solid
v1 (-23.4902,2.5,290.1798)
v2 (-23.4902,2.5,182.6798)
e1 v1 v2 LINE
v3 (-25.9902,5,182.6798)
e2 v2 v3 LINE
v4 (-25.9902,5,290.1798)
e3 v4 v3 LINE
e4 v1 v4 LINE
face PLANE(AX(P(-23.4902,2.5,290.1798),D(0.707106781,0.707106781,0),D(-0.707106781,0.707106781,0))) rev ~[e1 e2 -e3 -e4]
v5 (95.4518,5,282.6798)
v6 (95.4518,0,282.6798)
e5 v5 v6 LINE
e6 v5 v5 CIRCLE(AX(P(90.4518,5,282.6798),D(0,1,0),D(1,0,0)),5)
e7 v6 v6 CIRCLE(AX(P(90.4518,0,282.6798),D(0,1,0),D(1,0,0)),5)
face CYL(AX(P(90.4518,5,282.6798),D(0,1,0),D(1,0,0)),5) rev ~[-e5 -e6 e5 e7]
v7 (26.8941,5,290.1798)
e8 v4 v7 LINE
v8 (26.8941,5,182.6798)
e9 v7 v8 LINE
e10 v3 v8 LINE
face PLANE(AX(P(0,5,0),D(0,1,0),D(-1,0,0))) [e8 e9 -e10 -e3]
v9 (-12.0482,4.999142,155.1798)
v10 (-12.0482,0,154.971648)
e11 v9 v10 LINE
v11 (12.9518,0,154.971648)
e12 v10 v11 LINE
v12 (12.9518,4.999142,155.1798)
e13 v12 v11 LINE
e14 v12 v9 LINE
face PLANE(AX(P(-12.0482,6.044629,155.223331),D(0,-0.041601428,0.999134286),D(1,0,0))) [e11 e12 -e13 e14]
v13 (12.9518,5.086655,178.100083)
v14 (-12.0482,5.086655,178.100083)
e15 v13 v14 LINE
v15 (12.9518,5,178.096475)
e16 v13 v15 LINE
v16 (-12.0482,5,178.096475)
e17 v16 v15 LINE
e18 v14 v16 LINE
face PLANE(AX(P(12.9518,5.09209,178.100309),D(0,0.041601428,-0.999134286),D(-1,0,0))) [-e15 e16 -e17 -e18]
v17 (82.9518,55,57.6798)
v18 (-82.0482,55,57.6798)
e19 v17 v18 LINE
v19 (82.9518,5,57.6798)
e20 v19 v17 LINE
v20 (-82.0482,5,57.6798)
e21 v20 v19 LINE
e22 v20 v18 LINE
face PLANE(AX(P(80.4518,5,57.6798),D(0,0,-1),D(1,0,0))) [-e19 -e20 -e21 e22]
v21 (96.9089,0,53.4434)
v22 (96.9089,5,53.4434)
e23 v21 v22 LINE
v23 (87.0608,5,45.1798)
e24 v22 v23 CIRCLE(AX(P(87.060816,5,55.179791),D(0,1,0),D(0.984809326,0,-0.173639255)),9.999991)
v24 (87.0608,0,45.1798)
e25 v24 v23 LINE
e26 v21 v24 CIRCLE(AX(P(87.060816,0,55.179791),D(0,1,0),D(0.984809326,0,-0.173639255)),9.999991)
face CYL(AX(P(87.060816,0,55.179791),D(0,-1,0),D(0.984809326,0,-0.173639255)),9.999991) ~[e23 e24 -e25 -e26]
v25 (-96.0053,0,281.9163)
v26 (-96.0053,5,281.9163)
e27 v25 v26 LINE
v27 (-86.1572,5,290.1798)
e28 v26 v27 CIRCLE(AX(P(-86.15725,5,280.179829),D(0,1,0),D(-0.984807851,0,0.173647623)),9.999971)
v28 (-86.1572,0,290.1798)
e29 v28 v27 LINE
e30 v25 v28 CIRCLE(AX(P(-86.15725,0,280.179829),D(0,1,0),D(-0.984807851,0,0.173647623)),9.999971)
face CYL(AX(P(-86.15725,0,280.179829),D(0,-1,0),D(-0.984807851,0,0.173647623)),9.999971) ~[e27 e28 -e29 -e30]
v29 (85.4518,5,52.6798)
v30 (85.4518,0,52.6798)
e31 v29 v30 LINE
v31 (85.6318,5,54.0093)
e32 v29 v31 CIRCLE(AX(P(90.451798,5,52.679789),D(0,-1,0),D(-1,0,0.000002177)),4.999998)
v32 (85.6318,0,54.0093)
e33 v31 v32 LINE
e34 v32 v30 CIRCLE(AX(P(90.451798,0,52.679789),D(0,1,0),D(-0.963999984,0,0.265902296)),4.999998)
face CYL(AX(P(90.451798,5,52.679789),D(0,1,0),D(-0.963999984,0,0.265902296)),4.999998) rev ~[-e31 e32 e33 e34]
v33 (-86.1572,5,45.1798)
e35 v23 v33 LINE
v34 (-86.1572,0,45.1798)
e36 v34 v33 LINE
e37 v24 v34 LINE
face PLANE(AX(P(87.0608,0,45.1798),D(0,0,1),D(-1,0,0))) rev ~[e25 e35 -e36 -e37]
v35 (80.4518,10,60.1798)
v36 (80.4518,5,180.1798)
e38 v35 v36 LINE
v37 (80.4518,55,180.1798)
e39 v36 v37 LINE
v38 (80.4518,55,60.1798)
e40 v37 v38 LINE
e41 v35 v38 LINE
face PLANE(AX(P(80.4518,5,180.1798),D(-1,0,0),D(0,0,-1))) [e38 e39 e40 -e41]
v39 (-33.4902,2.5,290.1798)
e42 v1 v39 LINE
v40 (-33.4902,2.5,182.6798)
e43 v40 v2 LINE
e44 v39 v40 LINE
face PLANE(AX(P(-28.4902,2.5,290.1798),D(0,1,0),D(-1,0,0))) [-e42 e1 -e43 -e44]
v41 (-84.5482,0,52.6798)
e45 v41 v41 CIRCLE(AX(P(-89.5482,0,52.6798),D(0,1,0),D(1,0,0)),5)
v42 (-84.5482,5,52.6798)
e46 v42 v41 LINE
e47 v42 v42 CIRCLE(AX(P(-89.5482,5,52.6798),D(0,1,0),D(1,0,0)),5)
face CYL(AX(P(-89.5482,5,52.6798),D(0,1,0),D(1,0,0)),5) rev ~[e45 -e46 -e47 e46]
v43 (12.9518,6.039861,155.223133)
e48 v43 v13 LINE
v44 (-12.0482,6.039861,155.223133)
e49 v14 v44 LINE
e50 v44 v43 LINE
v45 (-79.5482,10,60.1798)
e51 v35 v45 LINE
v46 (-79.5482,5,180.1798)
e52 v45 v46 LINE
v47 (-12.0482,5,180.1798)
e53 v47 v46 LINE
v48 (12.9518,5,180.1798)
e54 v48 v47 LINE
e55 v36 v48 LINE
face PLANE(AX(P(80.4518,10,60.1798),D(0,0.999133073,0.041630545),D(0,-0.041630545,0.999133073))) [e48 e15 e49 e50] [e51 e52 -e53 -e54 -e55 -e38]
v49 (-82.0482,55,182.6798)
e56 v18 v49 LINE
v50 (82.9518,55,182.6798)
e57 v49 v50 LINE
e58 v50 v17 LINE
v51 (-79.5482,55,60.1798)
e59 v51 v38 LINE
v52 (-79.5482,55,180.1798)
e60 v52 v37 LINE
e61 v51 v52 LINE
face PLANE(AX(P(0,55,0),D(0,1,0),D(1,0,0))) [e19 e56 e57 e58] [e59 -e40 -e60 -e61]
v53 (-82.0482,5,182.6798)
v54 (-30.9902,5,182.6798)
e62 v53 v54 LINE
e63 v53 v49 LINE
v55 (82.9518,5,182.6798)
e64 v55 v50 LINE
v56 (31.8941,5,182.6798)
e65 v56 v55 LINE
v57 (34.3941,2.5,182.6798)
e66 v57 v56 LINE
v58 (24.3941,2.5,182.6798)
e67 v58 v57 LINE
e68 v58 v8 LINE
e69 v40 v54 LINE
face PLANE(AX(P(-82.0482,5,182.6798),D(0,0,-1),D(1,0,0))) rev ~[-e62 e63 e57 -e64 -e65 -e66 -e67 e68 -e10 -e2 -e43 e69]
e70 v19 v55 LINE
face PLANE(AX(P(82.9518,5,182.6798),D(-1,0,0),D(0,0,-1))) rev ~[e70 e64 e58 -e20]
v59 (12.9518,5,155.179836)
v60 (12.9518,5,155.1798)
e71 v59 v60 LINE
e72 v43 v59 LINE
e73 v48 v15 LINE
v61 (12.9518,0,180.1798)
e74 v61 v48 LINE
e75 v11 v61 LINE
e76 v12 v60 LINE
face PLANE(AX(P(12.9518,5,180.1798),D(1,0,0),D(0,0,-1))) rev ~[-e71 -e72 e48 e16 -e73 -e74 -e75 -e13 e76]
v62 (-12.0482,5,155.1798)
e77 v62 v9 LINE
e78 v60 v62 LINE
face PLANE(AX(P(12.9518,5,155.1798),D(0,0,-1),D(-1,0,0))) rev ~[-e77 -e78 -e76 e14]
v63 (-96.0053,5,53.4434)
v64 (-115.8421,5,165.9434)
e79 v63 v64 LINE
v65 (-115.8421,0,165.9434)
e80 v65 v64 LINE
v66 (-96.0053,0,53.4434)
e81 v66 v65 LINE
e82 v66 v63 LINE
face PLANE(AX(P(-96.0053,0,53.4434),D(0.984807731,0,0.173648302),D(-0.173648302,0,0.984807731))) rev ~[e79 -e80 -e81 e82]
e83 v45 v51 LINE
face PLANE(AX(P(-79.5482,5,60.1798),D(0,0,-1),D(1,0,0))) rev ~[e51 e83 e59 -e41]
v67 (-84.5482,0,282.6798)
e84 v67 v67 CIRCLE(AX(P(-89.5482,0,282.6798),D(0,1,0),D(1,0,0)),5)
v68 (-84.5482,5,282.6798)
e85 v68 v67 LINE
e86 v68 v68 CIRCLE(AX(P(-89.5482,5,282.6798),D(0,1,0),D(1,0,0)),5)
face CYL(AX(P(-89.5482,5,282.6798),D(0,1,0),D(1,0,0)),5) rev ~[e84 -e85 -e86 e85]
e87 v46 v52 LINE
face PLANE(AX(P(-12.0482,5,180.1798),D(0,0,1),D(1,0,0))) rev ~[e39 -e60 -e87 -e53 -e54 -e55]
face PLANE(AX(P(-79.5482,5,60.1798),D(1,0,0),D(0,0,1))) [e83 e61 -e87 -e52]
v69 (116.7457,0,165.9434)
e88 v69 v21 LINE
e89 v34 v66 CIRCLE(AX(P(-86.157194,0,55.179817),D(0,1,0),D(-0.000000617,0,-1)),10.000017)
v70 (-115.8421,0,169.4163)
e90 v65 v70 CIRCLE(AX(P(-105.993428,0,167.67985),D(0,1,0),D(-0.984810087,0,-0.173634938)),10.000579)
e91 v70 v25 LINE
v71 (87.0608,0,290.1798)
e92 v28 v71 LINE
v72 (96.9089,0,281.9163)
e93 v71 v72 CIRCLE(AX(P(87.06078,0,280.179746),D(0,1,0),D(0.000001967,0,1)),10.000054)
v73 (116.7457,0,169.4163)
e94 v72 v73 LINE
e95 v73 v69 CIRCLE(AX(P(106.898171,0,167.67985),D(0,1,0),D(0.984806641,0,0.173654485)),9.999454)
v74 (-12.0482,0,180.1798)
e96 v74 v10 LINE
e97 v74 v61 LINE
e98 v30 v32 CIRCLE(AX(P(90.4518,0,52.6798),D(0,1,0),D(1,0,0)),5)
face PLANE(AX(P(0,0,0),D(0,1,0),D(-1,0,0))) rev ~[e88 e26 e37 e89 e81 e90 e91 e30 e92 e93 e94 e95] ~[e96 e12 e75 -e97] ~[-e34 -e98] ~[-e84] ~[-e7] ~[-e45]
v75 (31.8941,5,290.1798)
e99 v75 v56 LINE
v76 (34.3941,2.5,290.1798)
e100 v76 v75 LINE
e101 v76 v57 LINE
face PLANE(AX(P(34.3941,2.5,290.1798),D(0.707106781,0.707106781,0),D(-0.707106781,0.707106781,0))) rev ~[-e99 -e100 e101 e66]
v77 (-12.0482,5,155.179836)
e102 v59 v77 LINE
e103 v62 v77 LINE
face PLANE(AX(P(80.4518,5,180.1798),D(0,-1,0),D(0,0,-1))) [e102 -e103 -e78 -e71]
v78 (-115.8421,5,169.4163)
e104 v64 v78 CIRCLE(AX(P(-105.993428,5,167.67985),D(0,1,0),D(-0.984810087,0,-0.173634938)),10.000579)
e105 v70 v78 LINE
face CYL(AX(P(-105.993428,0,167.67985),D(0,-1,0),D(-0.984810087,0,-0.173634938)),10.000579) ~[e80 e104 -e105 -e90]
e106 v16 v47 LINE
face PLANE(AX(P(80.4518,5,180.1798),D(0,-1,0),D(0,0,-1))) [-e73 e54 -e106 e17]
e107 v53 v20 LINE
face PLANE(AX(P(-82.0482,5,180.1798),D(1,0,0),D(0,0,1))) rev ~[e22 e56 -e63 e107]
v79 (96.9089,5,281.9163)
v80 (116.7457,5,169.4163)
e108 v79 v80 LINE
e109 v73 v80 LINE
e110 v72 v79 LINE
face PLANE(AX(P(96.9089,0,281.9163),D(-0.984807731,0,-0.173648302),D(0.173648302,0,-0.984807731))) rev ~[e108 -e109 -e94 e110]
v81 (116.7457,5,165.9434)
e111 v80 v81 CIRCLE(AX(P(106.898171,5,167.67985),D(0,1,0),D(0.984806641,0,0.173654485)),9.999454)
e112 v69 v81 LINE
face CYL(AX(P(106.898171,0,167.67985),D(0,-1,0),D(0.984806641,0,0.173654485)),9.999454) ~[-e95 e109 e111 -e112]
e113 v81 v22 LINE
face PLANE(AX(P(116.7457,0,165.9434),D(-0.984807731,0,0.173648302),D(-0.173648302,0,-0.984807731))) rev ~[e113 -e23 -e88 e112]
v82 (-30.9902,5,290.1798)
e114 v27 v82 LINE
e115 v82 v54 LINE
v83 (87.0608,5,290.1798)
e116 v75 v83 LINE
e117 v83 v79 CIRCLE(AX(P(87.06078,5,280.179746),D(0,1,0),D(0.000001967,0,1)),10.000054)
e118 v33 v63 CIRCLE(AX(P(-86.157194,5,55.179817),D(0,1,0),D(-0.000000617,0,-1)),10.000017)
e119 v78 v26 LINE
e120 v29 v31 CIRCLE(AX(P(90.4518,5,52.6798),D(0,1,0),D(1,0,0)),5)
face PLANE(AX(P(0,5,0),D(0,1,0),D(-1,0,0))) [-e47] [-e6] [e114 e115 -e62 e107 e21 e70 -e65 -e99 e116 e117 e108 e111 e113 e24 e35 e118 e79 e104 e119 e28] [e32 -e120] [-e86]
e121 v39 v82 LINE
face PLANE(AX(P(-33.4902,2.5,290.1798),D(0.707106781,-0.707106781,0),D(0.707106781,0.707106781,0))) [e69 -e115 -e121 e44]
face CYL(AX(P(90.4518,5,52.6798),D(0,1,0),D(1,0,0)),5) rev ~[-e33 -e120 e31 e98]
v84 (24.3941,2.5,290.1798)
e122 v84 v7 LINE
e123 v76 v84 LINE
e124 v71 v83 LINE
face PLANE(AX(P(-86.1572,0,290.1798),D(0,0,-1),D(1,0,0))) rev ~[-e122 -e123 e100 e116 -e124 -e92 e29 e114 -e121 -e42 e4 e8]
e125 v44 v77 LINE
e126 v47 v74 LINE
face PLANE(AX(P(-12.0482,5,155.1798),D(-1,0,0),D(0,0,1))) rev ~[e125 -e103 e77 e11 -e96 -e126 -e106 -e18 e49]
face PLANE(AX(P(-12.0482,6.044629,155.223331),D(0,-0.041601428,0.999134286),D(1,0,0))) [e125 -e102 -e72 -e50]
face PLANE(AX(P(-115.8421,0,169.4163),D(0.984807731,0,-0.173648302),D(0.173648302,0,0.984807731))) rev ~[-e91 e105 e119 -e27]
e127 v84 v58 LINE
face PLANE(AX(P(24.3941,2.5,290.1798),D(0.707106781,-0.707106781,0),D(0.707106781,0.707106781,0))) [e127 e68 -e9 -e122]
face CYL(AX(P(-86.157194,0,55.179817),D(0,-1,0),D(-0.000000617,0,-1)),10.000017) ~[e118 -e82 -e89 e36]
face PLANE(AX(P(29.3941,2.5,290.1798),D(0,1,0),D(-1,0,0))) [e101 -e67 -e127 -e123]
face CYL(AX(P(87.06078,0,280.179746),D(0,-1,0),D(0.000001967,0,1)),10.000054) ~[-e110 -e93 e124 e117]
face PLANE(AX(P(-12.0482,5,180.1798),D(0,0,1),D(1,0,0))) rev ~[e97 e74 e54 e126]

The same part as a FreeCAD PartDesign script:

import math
import FreeCAD as App
import Part
import Sketcher
from FreeCAD import Vector
Q = App.Units.Quantity


def add_polygon(sketch, points):
    """Adds a closed chain of lines whose ends are joined by coincident constraints."""
    first, n = sketch.GeometryCount, len(points)
    for a, b in zip(points, points[1:] + points[:1]):
        sketch.addGeometry(Part.LineSegment(App.Vector(*a, 0), App.Vector(*b, 0)), False)
    for i in range(n):
        sketch.addConstraint(Sketcher.Constraint("Coincident", first + i, 2, first + (i + 1) % n, 1))

doc = App.newDocument("Part")
body = doc.addObject("PartDesign::Body", "Body")

sketch1 = doc.addObject("Sketcher::SketchObject", "Sketch")
body.addObject(sketch1)
sketch1.AttachmentSupport = (doc.XZ_Plane, [""])
sketch1.MapMode = "FlatFace"
sketch1.addGeometry(Part.LineSegment(Vector(87.1, 45.2, 0), Vector(-86.2, 45.2, 0)), False)
sketch1.addGeometry(Part.ArcOfCircle(Part.Circle(Vector(-86.2, 55.2, 0), Vector(0, 0, 1), 10), math.radians(-170), math.radians(-90)), False)
sketch1.addGeometry(Part.LineSegment(Vector(-96, 53.4, 0), Vector(-115.8, 165.9, 0)), False)
sketch1.addGeometry(Part.ArcOfCircle(Part.Circle(Vector(-106, 167.7, 0), Vector(0, 0, 1), 10), math.radians(170), math.radians(190)), False)
sketch1.addGeometry(Part.LineSegment(Vector(-115.8, 169.4, 0), Vector(-96, 281.9, 0)), False)
sketch1.addGeometry(Part.ArcOfCircle(Part.Circle(Vector(-86.2, 280.2, 0), Vector(0, 0, 1), 10), math.radians(90), math.radians(170)), False)
sketch1.addGeometry(Part.LineSegment(Vector(-86.2, 290.2, 0), Vector(87.1, 290.2, 0)), False)
sketch1.addGeometry(Part.ArcOfCircle(Part.Circle(Vector(87.1, 280.2, 0), Vector(0, 0, 1), 10), math.radians(10), math.radians(90)), False)
sketch1.addGeometry(Part.LineSegment(Vector(96.9, 281.9, 0), Vector(116.7, 169.4, 0)), False)
sketch1.addGeometry(Part.ArcOfCircle(Part.Circle(Vector(106.9, 167.7, 0), Vector(0, 0, 1), 10), math.radians(-10), math.radians(10)), False)
sketch1.addGeometry(Part.LineSegment(Vector(116.7, 165.9, 0), Vector(96.9, 53.4, 0)), False)
sketch1.addGeometry(Part.ArcOfCircle(Part.Circle(Vector(87.1, 55.2, 0), Vector(0, 0, 1), 10), math.radians(-90), math.radians(-10)), False)
sketch1.addConstraint(Sketcher.Constraint("Tangent", 0, 2, 1, 2))
sketch1.addConstraint(Sketcher.Constraint("Tangent", 1, 1, 2, 1))
sketch1.addConstraint(Sketcher.Constraint("Tangent", 2, 2, 3, 2))
sketch1.addConstraint(Sketcher.Constraint("Tangent", 3, 1, 4, 1))
sketch1.addConstraint(Sketcher.Constraint("Tangent", 4, 2, 5, 2))
sketch1.addConstraint(Sketcher.Constraint("Tangent", 5, 1, 6, 1))
sketch1.addConstraint(Sketcher.Constraint("Tangent", 6, 2, 7, 2))
sketch1.addConstraint(Sketcher.Constraint("Tangent", 7, 1, 8, 1))
sketch1.addConstraint(Sketcher.Constraint("Tangent", 8, 2, 9, 2))
sketch1.addConstraint(Sketcher.Constraint("Tangent", 9, 1, 10, 1))
sketch1.addConstraint(Sketcher.Constraint("Tangent", 10, 2, 11, 2))
sketch1.addConstraint(Sketcher.Constraint("Tangent", 11, 1, 0, 1))
sketch1.addConstraint(Sketcher.Constraint("Horizontal", 0))
sketch1.addConstraint(Sketcher.Constraint("Horizontal", 6))
sketch1.addConstraint(Sketcher.Constraint("Equal", 1, 3))
sketch1.addConstraint(Sketcher.Constraint("Equal", 3, 5))
sketch1.addConstraint(Sketcher.Constraint("Equal", 5, 7))
sketch1.addConstraint(Sketcher.Constraint("Equal", 7, 9))
sketch1.addConstraint(Sketcher.Constraint("Equal", 9, 11))
sketch1.addConstraint(Sketcher.Constraint("Parallel", 2, 8))
sketch1.addConstraint(Sketcher.Constraint("Parallel", 4, 10))
sketch1.addConstraint(Sketcher.Constraint("Horizontal", 3, 3, 9, 3))
sketch1.addConstraint(Sketcher.Constraint("Horizontal", 4, 2, 7, 1))
sketch1.addConstraint(Sketcher.Constraint("Vertical", 1, 3, 5, 3))
sketch1.addConstraint(Sketcher.Constraint("Radius", 1, 10.0))
sketch1.addConstraint(Sketcher.Constraint("Angle", 2, Q("100 deg")))
sketch1.addConstraint(Sketcher.Constraint("DistanceY", 1, 3, 5, 3, 225.0))
sketch1.addConstraint(Sketcher.Constraint("DistanceX", 0, 2, 0, 1, 173.218))
sketch1.addConstraint(Sketcher.Constraint("DistanceX", 3, 3, -1, 1, 105.994))
sketch1.addConstraint(Sketcher.Constraint("DistanceY", -1, 1, 1, 3, 55.1798))
pad1 = doc.addObject("PartDesign::Pad", "Pad")
body.addObject(pad1)
pad1.Profile = sketch1
pad1.Length = 5
pad1.Reversed = True

sketch2 = doc.addObject("Sketcher::SketchObject", "Sketch001")
body.addObject(sketch2)
sketch2.AttachmentSupport = (doc.XZ_Plane, [""])
sketch2.MapMode = "FlatFace"
sketch2.AttachmentOffset = App.Placement(Vector(0, 0, -5), App.Rotation())
sketch2.addGeometry(Part.ArcOfCircle(Part.Circle(Vector(90.5, 52.7, 0), Vector(0, 0, 1), 5), math.radians(164.58), math.radians(180)), False)
sketch2.addGeometry(Part.ArcOfCircle(Part.Circle(Vector(90.5, 52.7, 0), Vector(0, 0, 1), 5), math.radians(180), math.radians(525)), False)
sketch2.addGeometry(Part.Circle(Vector(90.5, 282.7, 0), Vector(0, 0, 1), 5), False)
sketch2.addGeometry(Part.Circle(Vector(-89.5, 52.7, 0), Vector(0, 0, 1), 5), False)
sketch2.addGeometry(Part.Circle(Vector(-89.5, 282.7, 0), Vector(0, 0, 1), 5), False)
sketch2.addConstraint(Sketcher.Constraint("Tangent", 0, 1, 1, 2))
sketch2.addConstraint(Sketcher.Constraint("Coincident", 1, 1, 0, 2))
sketch2.addConstraint(Sketcher.Constraint("Equal", 1, 2))
sketch2.addConstraint(Sketcher.Constraint("Equal", 2, 3))
sketch2.addConstraint(Sketcher.Constraint("Equal", 3, 4))
sketch2.addConstraint(Sketcher.Constraint("Horizontal", 1, 3, 3, 3))
sketch2.addConstraint(Sketcher.Constraint("Horizontal", 2, 3, 4, 3))
sketch2.addConstraint(Sketcher.Constraint("Horizontal", 3, 3, 1, 1))
sketch2.addConstraint(Sketcher.Constraint("Vertical", 1, 3, 2, 3))
sketch2.addConstraint(Sketcher.Constraint("Vertical", 3, 3, 4, 3))
sketch2.addConstraint(Sketcher.Constraint("Diameter", 2, 10.0))
sketch2.addConstraint(Sketcher.Constraint("DistanceY", 0, 3, 2, 3, 230.0))
sketch2.addConstraint(Sketcher.Constraint("DistanceX", 3, 3, 0, 3, 180.0))
sketch2.addConstraint(Sketcher.Constraint("DistanceX", 0, 1, 0, 3, 4.82))
sketch2.addConstraint(Sketcher.Constraint("DistanceX", -1, 1, 0, 3, 90.4518))
sketch2.addConstraint(Sketcher.Constraint("DistanceY", -1, 1, 0, 3, 52.6798))
pocket1 = doc.addObject("PartDesign::Pocket", "Pocket")
body.addObject(pocket1)
pocket1.Profile = sketch2
pocket1.Type = "ThroughAll"
pocket1.Reversed = True

sketch3 = doc.addObject("Sketcher::SketchObject", "Sketch002")
body.addObject(sketch3)
sketch3.AttachmentSupport = (doc.XZ_Plane, [""])
sketch3.MapMode = "FlatFace"
sketch3.AttachmentOffset = App.Placement(Vector(0, 0, -5), App.Rotation())
add_polygon(sketch3, [(-12, 180), (13, 180), (13, 155), (-12, 155)])
sketch3.addConstraint(Sketcher.Constraint("Horizontal", 0))
sketch3.addConstraint(Sketcher.Constraint("Vertical", 1))
sketch3.addConstraint(Sketcher.Constraint("Horizontal", 2))
sketch3.addConstraint(Sketcher.Constraint("Vertical", 3))
sketch3.addConstraint(Sketcher.Constraint("Equal", 2, 1))
sketch3.addConstraint(Sketcher.Constraint("DistanceX", 0, 1, 0, 2, 25.0))
sketch3.addConstraint(Sketcher.Constraint("DistanceX", -1, 1, 0, 2, 12.9518))
sketch3.addConstraint(Sketcher.Constraint("DistanceY", -1, 1, 0, 2, 180.1798))
pocket2 = doc.addObject("PartDesign::Pocket", "Pocket001")
body.addObject(pocket2)
pocket2.Profile = sketch3
pocket2.Length = 50
pocket2.Midplane = True

sketch4 = doc.addObject("Sketcher::SketchObject", "Sketch003")
body.addObject(sketch4)
sketch4.AttachmentSupport = (doc.XZ_Plane, [""])
sketch4.MapMode = "FlatFace"
sketch4.AttachmentOffset = App.Placement(Vector(0, 0, -5), App.Rotation())
add_polygon(sketch4, [(83, 183), (83, 58), (-82, 58), (-82, 183)])
add_polygon(sketch4, [(-80, 180), (-80, 60), (80, 60), (80, 180)])
sketch4.addConstraint(Sketcher.Constraint("Vertical", 0))
sketch4.addConstraint(Sketcher.Constraint("Horizontal", 1))
sketch4.addConstraint(Sketcher.Constraint("Vertical", 2))
sketch4.addConstraint(Sketcher.Constraint("Horizontal", 3))
sketch4.addConstraint(Sketcher.Constraint("Vertical", 4))
sketch4.addConstraint(Sketcher.Constraint("Horizontal", 5))
sketch4.addConstraint(Sketcher.Constraint("Vertical", 6))
sketch4.addConstraint(Sketcher.Constraint("Horizontal", 7))
sketch4.addConstraint(Sketcher.Constraint("DistanceY", 4, 2, 4, 1, 120.0))
sketch4.addConstraint(Sketcher.Constraint("DistanceX", 1, 2, 4, 2, 2.5))
sketch4.addConstraint(Sketcher.Constraint("DistanceY", 1, 2, 4, 2, 2.5))
sketch4.addConstraint(Sketcher.Constraint("DistanceX", 5, 2, 0, 2, 2.5))
sketch4.addConstraint(Sketcher.Constraint("DistanceY", 6, 2, 3, 2, 2.5))
sketch4.addConstraint(Sketcher.Constraint("DistanceX", 1, 2, 1, 1, 165.0))
sketch4.addConstraint(Sketcher.Constraint("DistanceX", -1, 1, 0, 2, 82.9518))
sketch4.addConstraint(Sketcher.Constraint("DistanceY", -1, 1, 0, 2, 57.6798))
pad2 = doc.addObject("PartDesign::Pad", "Pad001")
body.addObject(pad2)
pad2.Profile = sketch4
pad2.Length = 50
pad2.Reversed = True

sketch5 = doc.addObject("Sketcher::SketchObject", "Sketch004")
body.addObject(sketch5)
sketch5.AttachmentSupport = (doc.YZ_Plane, [""])
sketch5.MapMode = "FlatFace"
sketch5.AttachmentOffset = App.Placement(Vector(0, 0, 80.4518), App.Rotation())
add_polygon(sketch5, [(5, 60), (5, 180), (10, 60)])
sketch5.addConstraint(Sketcher.Constraint("Vertical", 0))
sketch5.addConstraint(Sketcher.Constraint("Horizontal", 2))
sketch5.addConstraint(Sketcher.Constraint("DistanceX", 2, 2, 2, 1, 5.0))
sketch5.addConstraint(Sketcher.Constraint("DistanceX", -1, 1, 0, 2, 5.0))
sketch5.addConstraint(Sketcher.Constraint("DistanceY", 0, 1, 0, 2, 120.0))
sketch5.addConstraint(Sketcher.Constraint("DistanceY", -1, 1, 0, 2, 180.1798))
pad3 = doc.addObject("PartDesign::Pad", "Pad002")
body.addObject(pad3)
pad3.Profile = sketch5
pad3.Length = 160
pad3.Reversed = True

sketch6 = doc.addObject("Sketcher::SketchObject", "Sketch005")
body.addObject(sketch6)
sketch6.Placement = App.Placement(Vector(-79.5482, 10, 60.1798), App.Rotation(Vector(1, 0, 0), Vector(0, 0.041601428, -0.999134286), Vector(0, 0.999134286, 0.041601428), "ZXY"))
add_polygon(sketch6, [(68, -95), (68, -118), (92, -118), (92, -95)])
sketch6.addConstraint(Sketcher.Constraint("Vertical", 0))
sketch6.addConstraint(Sketcher.Constraint("Horizontal", 1))
sketch6.addConstraint(Sketcher.Constraint("Vertical", 2))
sketch6.addConstraint(Sketcher.Constraint("Horizontal", 3))
sketch6.addConstraint(Sketcher.Constraint("DistanceX", 1, 1, 1, 2, 25.0))
sketch6.addConstraint(Sketcher.Constraint("DistanceX", -1, 1, 0, 2, 67.5))
sketch6.addConstraint(Sketcher.Constraint("DistanceY", 0, 2, 0, 1, 22.8968))
sketch6.addConstraint(Sketcher.Constraint("DistanceY", 0, 2, -1, 1, 118.0226))
pocket3 = doc.addObject("PartDesign::Pocket", "Pocket002")
body.addObject(pocket3)
pocket3.Profile = sketch6
pocket3.Length = 10

sketch7 = doc.addObject("Sketcher::SketchObject", "Sketch006")
body.addObject(sketch7)
sketch7.AttachmentSupport = (doc.XY_Plane, [""])
sketch7.MapMode = "FlatFace"
sketch7.AttachmentOffset = App.Placement(Vector(0, 0, 290.1798), App.Rotation())
add_polygon(sketch7, [(-23.5, 2.5), (-26, 5), (-31, 5), (-33.5, 2.5)])
add_polygon(sketch7, [(34.4, 2.5), (31.9, 5), (26.9, 5), (24.4, 2.5)])
sketch7.addConstraint(Sketcher.Constraint("Horizontal", 1))
sketch7.addConstraint(Sketcher.Constraint("Horizontal", 3))
sketch7.addConstraint(Sketcher.Constraint("Horizontal", 5))
sketch7.addConstraint(Sketcher.Constraint("Horizontal", 7))
sketch7.addConstraint(Sketcher.Constraint("Perpendicular", 0, 2))
sketch7.addConstraint(Sketcher.Constraint("Perpendicular", 2, 4))
sketch7.addConstraint(Sketcher.Constraint("Perpendicular", 4, 6))
sketch7.addConstraint(Sketcher.Constraint("Horizontal", 1, 2, 4, 2))
sketch7.addConstraint(Sketcher.Constraint("Horizontal", 3, 2, 6, 2))
sketch7.addConstraint(Sketcher.Constraint("Equal", 1, 5))
sketch7.addConstraint(Sketcher.Constraint("Equal", 0, 2))
sketch7.addConstraint(Sketcher.Constraint("DistanceX", 1, 2, 1, 1, 5.0))
sketch7.addConstraint(Sketcher.Constraint("DistanceY", -1, 1, 0, 2, 5.0))
sketch7.addConstraint(Sketcher.Constraint("DistanceY", -1, 1, 2, 2, 2.5))
sketch7.addConstraint(Sketcher.Constraint("DistanceX", -1, 1, 4, 2, 31.894))
sketch7.addConstraint(Sketcher.Constraint("DistanceX", 0, 2, -1, 1, 25.9902))
pocket4 = doc.addObject("PartDesign::Pocket", "Pocket003")
body.addObject(pocket4)
pocket4.Profile = sketch7
pocket4.Length = 107.5

doc.recompute()
